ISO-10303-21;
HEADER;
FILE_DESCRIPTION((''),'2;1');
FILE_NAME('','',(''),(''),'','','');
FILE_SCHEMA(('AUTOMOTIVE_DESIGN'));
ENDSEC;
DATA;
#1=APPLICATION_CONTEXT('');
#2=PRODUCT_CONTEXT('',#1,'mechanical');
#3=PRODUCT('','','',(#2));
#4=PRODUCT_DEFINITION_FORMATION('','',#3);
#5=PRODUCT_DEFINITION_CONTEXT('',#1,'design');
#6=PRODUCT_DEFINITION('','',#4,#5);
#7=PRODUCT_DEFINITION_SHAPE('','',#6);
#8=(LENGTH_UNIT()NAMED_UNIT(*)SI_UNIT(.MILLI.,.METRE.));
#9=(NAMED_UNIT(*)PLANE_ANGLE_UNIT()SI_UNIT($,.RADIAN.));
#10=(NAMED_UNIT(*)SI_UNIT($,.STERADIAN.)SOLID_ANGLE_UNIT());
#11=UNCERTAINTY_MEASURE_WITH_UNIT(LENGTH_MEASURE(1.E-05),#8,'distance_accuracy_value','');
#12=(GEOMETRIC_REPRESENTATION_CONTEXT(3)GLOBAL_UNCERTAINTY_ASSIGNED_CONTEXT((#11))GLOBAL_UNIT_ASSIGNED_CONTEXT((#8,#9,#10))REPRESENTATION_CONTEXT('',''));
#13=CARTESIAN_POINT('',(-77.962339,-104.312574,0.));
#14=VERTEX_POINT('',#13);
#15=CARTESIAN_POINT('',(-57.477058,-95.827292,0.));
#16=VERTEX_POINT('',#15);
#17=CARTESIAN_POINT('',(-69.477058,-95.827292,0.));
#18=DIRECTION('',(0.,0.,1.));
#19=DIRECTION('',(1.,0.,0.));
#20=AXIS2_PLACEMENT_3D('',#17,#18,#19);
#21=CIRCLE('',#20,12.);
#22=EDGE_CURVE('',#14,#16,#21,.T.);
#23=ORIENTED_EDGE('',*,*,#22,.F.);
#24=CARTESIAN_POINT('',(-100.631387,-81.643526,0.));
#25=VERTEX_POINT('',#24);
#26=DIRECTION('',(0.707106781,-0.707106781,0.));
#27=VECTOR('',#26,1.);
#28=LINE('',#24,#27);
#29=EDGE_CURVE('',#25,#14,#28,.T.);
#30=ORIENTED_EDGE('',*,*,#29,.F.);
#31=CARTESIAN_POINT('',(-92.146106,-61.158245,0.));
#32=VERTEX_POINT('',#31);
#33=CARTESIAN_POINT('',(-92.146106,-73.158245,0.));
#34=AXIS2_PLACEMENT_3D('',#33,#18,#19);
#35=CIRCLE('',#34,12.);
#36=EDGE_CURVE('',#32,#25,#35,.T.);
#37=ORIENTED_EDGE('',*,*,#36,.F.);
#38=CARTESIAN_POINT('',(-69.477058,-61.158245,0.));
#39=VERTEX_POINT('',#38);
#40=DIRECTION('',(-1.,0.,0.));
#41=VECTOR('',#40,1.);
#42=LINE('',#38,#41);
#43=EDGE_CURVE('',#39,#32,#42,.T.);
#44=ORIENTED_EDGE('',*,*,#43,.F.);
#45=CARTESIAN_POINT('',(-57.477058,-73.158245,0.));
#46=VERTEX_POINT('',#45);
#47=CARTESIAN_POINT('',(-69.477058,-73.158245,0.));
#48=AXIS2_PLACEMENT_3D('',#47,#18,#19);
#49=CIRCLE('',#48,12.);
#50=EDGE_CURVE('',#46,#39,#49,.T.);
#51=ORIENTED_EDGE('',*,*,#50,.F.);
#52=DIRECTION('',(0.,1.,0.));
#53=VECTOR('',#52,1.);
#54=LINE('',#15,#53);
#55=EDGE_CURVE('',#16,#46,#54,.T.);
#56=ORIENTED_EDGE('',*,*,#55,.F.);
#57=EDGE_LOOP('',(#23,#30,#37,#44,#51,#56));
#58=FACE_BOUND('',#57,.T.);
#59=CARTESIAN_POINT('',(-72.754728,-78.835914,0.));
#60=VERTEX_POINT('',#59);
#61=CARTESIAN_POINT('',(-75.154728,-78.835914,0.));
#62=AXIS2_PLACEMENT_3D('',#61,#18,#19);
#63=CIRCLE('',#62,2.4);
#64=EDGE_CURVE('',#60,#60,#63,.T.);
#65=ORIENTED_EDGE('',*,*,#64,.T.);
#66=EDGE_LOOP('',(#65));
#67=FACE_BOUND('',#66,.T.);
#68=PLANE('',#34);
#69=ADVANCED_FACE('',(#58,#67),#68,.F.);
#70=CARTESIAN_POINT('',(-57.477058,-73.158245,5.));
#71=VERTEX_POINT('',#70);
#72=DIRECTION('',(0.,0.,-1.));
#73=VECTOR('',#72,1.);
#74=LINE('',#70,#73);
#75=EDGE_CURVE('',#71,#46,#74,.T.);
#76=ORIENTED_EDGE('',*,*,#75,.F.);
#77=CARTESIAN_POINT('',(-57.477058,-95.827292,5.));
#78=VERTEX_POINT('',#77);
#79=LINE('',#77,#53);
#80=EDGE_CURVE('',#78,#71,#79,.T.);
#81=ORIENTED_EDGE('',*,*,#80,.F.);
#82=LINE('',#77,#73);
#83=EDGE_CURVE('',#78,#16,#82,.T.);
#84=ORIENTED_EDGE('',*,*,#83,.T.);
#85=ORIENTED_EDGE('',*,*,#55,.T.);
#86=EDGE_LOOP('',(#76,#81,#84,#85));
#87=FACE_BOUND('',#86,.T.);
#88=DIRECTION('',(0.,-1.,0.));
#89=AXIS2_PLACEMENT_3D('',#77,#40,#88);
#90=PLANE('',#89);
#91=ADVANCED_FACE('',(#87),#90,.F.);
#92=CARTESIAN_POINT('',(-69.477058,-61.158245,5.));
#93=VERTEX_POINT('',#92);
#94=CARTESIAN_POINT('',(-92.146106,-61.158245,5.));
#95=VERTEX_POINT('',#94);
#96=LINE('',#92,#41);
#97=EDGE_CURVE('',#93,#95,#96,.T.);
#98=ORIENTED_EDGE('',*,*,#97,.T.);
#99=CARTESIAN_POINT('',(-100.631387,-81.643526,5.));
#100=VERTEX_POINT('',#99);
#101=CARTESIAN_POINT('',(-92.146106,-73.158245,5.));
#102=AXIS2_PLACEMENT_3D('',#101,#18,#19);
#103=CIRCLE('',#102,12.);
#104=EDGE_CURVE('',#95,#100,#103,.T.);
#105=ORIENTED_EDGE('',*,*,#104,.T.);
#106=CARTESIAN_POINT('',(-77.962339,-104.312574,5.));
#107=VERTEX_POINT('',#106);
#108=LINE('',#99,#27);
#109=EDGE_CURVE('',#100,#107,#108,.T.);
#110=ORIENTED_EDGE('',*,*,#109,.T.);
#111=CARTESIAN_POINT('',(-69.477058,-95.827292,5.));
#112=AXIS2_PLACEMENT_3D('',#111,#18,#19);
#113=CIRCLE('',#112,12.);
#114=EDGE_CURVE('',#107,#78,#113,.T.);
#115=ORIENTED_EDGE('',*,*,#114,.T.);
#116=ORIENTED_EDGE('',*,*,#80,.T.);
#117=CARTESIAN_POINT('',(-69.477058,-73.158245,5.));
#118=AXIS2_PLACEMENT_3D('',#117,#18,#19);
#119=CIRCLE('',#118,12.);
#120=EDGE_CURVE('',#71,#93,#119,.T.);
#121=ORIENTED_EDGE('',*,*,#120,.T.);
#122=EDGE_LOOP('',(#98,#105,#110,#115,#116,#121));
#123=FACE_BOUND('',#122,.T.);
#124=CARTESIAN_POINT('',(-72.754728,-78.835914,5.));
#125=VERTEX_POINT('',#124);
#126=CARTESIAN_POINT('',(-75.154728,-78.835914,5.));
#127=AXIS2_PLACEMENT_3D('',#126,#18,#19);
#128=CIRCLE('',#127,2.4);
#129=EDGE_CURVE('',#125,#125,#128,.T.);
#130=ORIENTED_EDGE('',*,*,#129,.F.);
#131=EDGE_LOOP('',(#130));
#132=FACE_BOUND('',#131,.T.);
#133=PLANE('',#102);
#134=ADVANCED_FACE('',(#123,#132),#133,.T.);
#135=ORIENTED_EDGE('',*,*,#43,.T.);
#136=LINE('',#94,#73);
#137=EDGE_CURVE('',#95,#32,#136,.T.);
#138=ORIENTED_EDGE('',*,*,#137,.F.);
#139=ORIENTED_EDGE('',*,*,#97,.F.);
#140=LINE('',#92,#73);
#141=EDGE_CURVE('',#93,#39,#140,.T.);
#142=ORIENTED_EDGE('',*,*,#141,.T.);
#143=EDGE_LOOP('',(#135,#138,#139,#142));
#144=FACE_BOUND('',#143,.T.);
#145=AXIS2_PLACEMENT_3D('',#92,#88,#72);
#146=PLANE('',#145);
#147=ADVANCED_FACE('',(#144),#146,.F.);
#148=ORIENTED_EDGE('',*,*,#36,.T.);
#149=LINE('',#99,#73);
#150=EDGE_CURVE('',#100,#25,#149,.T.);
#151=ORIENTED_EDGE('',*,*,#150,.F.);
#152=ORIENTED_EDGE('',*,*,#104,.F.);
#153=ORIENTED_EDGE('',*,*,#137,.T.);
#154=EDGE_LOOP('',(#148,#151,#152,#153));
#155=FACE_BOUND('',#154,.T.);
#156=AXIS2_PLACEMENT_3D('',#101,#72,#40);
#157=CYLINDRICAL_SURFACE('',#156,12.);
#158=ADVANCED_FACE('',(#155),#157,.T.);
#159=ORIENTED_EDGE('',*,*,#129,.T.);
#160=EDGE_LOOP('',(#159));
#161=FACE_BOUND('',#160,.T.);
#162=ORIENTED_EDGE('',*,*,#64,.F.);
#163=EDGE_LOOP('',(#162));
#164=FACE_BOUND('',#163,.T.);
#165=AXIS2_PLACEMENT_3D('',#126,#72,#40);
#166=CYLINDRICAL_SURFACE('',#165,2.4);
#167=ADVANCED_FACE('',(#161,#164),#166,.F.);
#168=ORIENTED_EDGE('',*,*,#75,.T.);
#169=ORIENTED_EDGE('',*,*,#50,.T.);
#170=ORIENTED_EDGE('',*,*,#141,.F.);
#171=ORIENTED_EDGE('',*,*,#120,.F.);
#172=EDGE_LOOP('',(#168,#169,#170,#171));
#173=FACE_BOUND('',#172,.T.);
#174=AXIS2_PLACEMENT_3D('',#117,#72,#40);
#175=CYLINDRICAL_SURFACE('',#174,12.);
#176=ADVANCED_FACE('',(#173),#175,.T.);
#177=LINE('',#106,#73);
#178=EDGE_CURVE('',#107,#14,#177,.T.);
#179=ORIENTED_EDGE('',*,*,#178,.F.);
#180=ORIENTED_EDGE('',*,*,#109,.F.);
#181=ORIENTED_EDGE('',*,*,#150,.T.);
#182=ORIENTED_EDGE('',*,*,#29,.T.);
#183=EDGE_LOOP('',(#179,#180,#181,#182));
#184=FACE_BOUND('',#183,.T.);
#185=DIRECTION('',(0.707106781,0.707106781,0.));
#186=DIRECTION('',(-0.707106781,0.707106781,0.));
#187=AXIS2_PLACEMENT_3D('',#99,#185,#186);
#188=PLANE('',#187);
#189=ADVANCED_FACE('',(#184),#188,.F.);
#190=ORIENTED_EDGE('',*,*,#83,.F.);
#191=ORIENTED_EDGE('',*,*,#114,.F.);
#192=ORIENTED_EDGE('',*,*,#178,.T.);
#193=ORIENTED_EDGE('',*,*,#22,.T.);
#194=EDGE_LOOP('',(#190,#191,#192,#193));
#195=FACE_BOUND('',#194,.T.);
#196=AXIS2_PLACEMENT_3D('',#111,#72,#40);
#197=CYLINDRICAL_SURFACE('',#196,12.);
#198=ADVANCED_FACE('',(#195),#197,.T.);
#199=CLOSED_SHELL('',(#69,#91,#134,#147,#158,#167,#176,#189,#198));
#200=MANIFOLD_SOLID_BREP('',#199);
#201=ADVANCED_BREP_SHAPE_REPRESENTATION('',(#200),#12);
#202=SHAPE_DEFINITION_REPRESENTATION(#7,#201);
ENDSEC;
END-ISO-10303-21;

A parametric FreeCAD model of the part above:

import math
import FreeCAD as App
import Part
import Sketcher

doc = App.newDocument("Part")
body = doc.addObject("PartDesign::Body", "Body")

# Sketch on XY plane
sketch1 = body.newObject("Sketcher::SketchObject", "Sketch")
sketch1.AttachmentSupport = (doc.getObject("XY_Plane"), [""])
sketch1.MapMode = "FlatFace"
sketch1.addGeometry(Part.LineSegment(App.Vector(-69.5, -61.2, 0), App.Vector(-92.1, -61.2, 0)), False)
sketch1.addGeometry(Part.ArcOfCircle(Part.Circle(App.Vector(-92.1, -73.2, 0), App.Vector(0, 0, 1), 12), math.radians(90), math.radians(225)), False)
sketch1.addGeometry(Part.LineSegment(App.Vector(-100.6, -81.6, 0), App.Vector(-78, -104.3, 0)), False)
sketch1.addGeometry(Part.ArcOfCircle(Part.Circle(App.Vector(-69.5, -95.8, 0), App.Vector(0, 0, 1), 12), math.radians(-135), math.radians(0)), False)
sketch1.addGeometry(Part.LineSegment(App.Vector(-57.5, -95.8, 0), App.Vector(-57.5, -73.2, 0)), False)
sketch1.addGeometry(Part.ArcOfCircle(Part.Circle(App.Vector(-69.5, -73.2, 0), App.Vector(0, 0, 1), 12), math.radians(0), math.radians(90)), False)
sketch1.addGeometry(Part.Circle(App.Vector(-75.2, -78.8, 0), App.Vector(0, 0, 1), 2.4), False)
sketch1.addConstraint(Sketcher.Constraint("Tangent", 0, 2, 1, 1))
sketch1.addConstraint(Sketcher.Constraint("Tangent", 1, 2, 2, 1))
sketch1.addConstraint(Sketcher.Constraint("Tangent", 2, 2, 3, 1))
sketch1.addConstraint(Sketcher.Constraint("Tangent", 3, 2, 4, 1))
sketch1.addConstraint(Sketcher.Constraint("Tangent", 4, 2, 5, 1))
sketch1.addConstraint(Sketcher.Constraint("Tangent", 5, 2, 0, 1))
sketch1.addConstraint(Sketcher.Constraint("Horizontal", 0))
sketch1.addConstraint(Sketcher.Constraint("Vertical", 4))
sketch1.addConstraint(Sketcher.Constraint("Equal", 1, 3))
sketch1.addConstraint(Sketcher.Constraint("Equal", 3, 5))
sketch1.addConstraint(Sketcher.Constraint("Equal", 0, 4))
sketch1.addConstraint(Sketcher.Constraint("Radius", 1, 12.0))
sketch1.addConstraint(Sketcher.Constraint("Diameter", 6, 4.8))
sketch1.addConstraint(Sketcher.Constraint("DistanceX", 0, 2, 0, 1, 22.669048))
sketch1.addConstraint(Sketcher.Constraint("DistanceX", 3, 3, -1, 1, 69.477058))
sketch1.addConstraint(Sketcher.Constraint("DistanceX", 6, 3, 5, 3, 5.67767))
sketch1.addConstraint(Sketcher.Constraint("DistanceY", 6, 3, 5, 3, 5.67767))
sketch1.addConstraint(Sketcher.Constraint("DistanceY", 1, 3, -1, 1, 73.158245))
pad1 = body.newObject("PartDesign::Pad", "Pad")
pad1.Profile = sketch1
pad1.Length = 5

doc.recompute()
